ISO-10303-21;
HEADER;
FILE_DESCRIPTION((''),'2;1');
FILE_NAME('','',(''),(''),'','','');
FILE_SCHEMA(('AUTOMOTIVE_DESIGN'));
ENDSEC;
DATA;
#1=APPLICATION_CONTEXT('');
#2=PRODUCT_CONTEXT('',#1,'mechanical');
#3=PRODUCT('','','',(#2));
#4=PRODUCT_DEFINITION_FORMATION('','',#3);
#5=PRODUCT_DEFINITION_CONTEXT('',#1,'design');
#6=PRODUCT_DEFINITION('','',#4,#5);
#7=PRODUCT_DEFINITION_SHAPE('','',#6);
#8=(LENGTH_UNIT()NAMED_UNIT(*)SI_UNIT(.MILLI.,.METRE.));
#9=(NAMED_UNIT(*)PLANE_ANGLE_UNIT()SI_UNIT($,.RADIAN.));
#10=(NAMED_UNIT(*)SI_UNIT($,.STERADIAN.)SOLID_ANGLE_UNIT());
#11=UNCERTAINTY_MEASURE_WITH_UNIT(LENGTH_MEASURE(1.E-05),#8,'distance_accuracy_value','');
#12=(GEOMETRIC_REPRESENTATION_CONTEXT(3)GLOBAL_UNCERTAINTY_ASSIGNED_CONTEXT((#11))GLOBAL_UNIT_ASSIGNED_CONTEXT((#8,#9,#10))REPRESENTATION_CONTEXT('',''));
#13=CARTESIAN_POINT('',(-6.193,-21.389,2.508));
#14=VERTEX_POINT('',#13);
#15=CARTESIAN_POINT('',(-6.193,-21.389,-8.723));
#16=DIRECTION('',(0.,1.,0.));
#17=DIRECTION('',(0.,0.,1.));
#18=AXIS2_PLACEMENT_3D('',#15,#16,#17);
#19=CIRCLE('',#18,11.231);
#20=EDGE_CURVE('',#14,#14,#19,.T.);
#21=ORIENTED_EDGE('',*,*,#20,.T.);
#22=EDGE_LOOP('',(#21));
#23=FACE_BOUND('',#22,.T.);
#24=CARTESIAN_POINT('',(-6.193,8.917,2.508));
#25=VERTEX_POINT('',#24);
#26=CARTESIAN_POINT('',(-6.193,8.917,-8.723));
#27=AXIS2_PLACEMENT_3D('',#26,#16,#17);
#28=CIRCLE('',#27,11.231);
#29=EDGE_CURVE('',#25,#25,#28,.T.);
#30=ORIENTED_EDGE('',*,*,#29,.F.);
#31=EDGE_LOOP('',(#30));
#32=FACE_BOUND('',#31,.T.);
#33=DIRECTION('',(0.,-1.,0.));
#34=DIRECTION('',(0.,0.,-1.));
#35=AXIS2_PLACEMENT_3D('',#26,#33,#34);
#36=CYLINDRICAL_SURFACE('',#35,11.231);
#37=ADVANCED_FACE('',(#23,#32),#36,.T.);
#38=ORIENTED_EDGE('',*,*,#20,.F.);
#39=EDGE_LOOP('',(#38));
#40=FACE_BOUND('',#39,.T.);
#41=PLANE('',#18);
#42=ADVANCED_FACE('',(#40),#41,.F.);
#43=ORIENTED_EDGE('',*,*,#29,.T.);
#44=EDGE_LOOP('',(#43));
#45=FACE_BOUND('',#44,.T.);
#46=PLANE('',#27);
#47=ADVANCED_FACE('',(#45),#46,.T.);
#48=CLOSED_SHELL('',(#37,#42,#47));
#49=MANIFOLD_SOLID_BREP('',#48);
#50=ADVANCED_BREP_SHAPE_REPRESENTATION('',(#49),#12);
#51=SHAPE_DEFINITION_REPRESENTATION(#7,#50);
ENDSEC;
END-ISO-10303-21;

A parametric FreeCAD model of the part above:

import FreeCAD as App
import Part
import Sketcher

V = App.Vector

doc = App.newDocument("Part")
params = doc.addObject("Spreadsheet::Sheet", "Params")
for row, (alias, value) in enumerate([
    ("pad1_length", "8.917 mm"),
    ("pad1_length2", "21.389 mm"),
], start=1):
    params.set(f"A{row}", alias)
    params.set(f"B{row}", "=" + value)
    params.setAlias(f"B{row}", alias)

body = doc.addObject("PartDesign::Body", "Body")

# Sketch on XZ plane
sketch1 = doc.addObject("Sketcher::SketchObject", "Sketch")
body.addObject(sketch1)
sketch1.AttachmentSupport = (doc.XZ_Plane, [""])
sketch1.MapMode = "FlatFace"
sketch1.addGeometry(Part.Circle(V(-6, -9, 0), V(0, 0, 1), 11), False)
sketch1.addConstraint([
    Sketcher.Constraint("Diameter", 0, 22.462),
    Sketcher.Constraint("DistanceX", 0, 3, -1, 1, 6.193),
    Sketcher.Constraint("DistanceY", 0, 3, -1, 1, 8.723),
])
pad1 = doc.addObject("PartDesign::Pad", "Pad")
body.addObject(pad1)
pad1.Profile = sketch1
pad1.Type = "TwoLengths"
pad1.setExpression("Length", "Params.pad1_length")
pad1.setExpression("Length2", "Params.pad1_length2")
pad1.Reversed = True

doc.recompute()
